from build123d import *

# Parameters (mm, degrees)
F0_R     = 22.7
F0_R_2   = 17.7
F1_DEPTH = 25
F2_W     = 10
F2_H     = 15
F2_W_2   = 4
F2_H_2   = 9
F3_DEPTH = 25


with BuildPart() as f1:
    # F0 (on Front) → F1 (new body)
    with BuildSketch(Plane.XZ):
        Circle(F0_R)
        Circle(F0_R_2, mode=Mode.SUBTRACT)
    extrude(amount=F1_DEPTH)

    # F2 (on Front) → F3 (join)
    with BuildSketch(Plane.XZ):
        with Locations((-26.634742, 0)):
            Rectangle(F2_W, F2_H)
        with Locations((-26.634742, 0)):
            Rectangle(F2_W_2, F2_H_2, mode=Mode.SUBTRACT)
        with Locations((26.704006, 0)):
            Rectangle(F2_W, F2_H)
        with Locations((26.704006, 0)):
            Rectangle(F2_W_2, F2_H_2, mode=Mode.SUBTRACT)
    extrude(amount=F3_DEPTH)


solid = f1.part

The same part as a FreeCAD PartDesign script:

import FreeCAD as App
import Part
import Sketcher
Q = App.Units.Quantity

doc = App.newDocument("Part")
body = doc.addObject("PartDesign::Body", "Body")

sketch1 = body.newObject("Sketcher::SketchObject", "Sketch")
sketch1.AttachmentSupport = (doc.getObject("XZ_Plane"), [""])
sketch1.MapMode = "FlatFace"
sketch1.addGeometry([
    Part.Circle(App.Vector(0, 0, 0), App.Vector(0, 0, 1), 22.7),
    Part.Circle(App.Vector(0, 0, 0), App.Vector(0, 0, 1), 17.7),
], False)
sketch1.addConstraint([
    Sketcher.Constraint("Coincident", 0, 3, -1, 1),
    Sketcher.Constraint("Coincident", 1, 3, -1, 1),
    Sketcher.Constraint("Diameter", 0, Q("45.4 mm")),
    Sketcher.Constraint("Diameter", 1, Q("35.4 mm")),
])
pad1 = body.newObject("PartDesign::Pad", "Pad")
pad1.Profile = sketch1
pad1.Length = 25

sketch2 = body.newObject("Sketcher::SketchObject", "Sketch001")
sketch2.AttachmentSupport = (doc.getObject("XZ_Plane"), [""])
sketch2.MapMode = "FlatFace"
sketch2.addGeometry([
    Part.LineSegment(App.Vector(-31.634742, 7.5, 0), App.Vector(-31.634742, -7.5, 0)),
    Part.LineSegment(App.Vector(-31.634742, -7.5, 0), App.Vector(-21.634742, -7.5, 0)),
    Part.LineSegment(App.Vector(-21.634742, -7.5, 0), App.Vector(-21.634742, 7.5, 0)),
    Part.LineSegment(App.Vector(-21.634742, 7.5, 0), App.Vector(-31.634742, 7.5, 0)),
    Part.LineSegment(App.Vector(-24.634742, -4.5, 0), App.Vector(-28.634742, -4.5, 0)),
    Part.LineSegment(App.Vector(-28.634742, -4.5, 0), App.Vector(-28.634742, 4.5, 0)),
    Part.LineSegment(App.Vector(-28.634742, 4.5, 0), App.Vector(-24.634742, 4.5, 0)),
    Part.LineSegment(App.Vector(-24.634742, 4.5, 0), App.Vector(-24.634742, -4.5, 0)),
    Part.LineSegment(App.Vector(21.704006, 7.5, 0), App.Vector(21.704006, -7.5, 0)),
    Part.LineSegment(App.Vector(21.704006, -7.5, 0), App.Vector(31.704006, -7.5, 0)),
    Part.LineSegment(App.Vector(31.704006, -7.5, 0), App.Vector(31.704006, 7.5, 0)),
    Part.LineSegment(App.Vector(31.704006, 7.5, 0), App.Vector(21.704006, 7.5, 0)),
    Part.LineSegment(App.Vector(28.704006, -4.5, 0), App.Vector(24.704006, -4.5, 0)),
    Part.LineSegment(App.Vector(24.704006, -4.5, 0), App.Vector(24.704006, 4.5, 0)),
    Part.LineSegment(App.Vector(24.704006, 4.5, 0), App.Vector(28.704006, 4.5, 0)),
    Part.LineSegment(App.Vector(28.704006, 4.5, 0), App.Vector(28.704006, -4.5, 0)),
], False)
sketch2.addConstraint([
    Sketcher.Constraint("Coincident", 0, 2, 1, 1),
    Sketcher.Constraint("Coincident", 1, 2, 2, 1),
    Sketcher.Constraint("Coincident", 2, 2, 3, 1),
    Sketcher.Constraint("Coincident", 3, 2, 0, 1),
    Sketcher.Constraint("Coincident", 4, 2, 5, 1),
    Sketcher.Constraint("Coincident", 5, 2, 6, 1),
    Sketcher.Constraint("Coincident", 6, 2, 7, 1),
    Sketcher.Constraint("Coincident", 7, 2, 4, 1),
    Sketcher.Constraint("Coincident", 8, 2, 9, 1),
    Sketcher.Constraint("Coincident", 9, 2, 10, 1),
    Sketcher.Constraint("Coincident", 10, 2, 11, 1),
    Sketcher.Constraint("Coincident", 11, 2, 8, 1),
    Sketcher.Constraint("Coincident", 12, 2, 13, 1),
    Sketcher.Constraint("Coincident", 13, 2, 14, 1),
    Sketcher.Constraint("Coincident", 14, 2, 15, 1),
    Sketcher.Constraint("Coincident", 15, 2, 12, 1),
    Sketcher.Constraint("Vertical", 0),
    Sketcher.Constraint("Horizontal", 1),
    Sketcher.Constraint("Vertical", 2),
    Sketcher.Constraint("Horizontal", 3),
    Sketcher.Constraint("Horizontal", 4),
    Sketcher.Constraint("Vertical", 5),
    Sketcher.Constraint("Horizontal", 6),
    Sketcher.Constraint("Vertical", 7),
    Sketcher.Constraint("Vertical", 8),
    Sketcher.Constraint("Horizontal", 9),
    Sketcher.Constraint("Vertical", 10),
    Sketcher.Constraint("Horizontal", 11),
    Sketcher.Constraint("Horizontal", 12),
    Sketcher.Constraint("Vertical", 13),
    Sketcher.Constraint("Horizontal", 14),
    Sketcher.Constraint("Vertical", 15),
    Sketcher.Constraint("Horizontal", 1, 2, 8, 2),
    Sketcher.Constraint("Horizontal", 3, 2, 10, 2),
    Sketcher.Constraint("Horizontal", 7, 2, 12, 2),
    Sketcher.Constraint("Horizontal", 6, 2, 13, 2),
    Sketcher.Constraint("Equal", 3, 9),
    Sketcher.Constraint("Equal", 6, 12),
    Sketcher.Constraint("DistanceX", 1, 1, 1, 2, Q("10 mm")),
    Sketcher.Constraint("DistanceX", 4, 2, 4, 1, Q("4 mm")),
    Sketcher.Constraint("DistanceY", 0, 2, 0, 1, Q("15 mm")),
    Sketcher.Constraint("DistanceY", 5, 1, 5, 2, Q("9 mm")),
    Sketcher.Constraint("DistanceX", 0, 2, 4, 2, Q("3 mm")),
    Sketcher.Constraint("DistanceY", 0, 2, 4, 2, Q("3 mm")),
    Sketcher.Constraint("DistanceX", 8, 2, 12, 2, Q("3 mm")),
    Sketcher.Constraint("DistanceY", 0, 2, -1, 1, Q("7.5 mm")),
    Sketcher.Constraint("DistanceX", 0, 2, -1, 1, Q("31.634742 mm")),
    Sketcher.Constraint("DistanceX", -1, 1, 8, 2, Q("21.704006 mm")),
])
pad2 = body.newObject("PartDesign::Pad", "Pad001")
pad2.Profile = sketch2
pad2.Length = 25

doc.recompute()
